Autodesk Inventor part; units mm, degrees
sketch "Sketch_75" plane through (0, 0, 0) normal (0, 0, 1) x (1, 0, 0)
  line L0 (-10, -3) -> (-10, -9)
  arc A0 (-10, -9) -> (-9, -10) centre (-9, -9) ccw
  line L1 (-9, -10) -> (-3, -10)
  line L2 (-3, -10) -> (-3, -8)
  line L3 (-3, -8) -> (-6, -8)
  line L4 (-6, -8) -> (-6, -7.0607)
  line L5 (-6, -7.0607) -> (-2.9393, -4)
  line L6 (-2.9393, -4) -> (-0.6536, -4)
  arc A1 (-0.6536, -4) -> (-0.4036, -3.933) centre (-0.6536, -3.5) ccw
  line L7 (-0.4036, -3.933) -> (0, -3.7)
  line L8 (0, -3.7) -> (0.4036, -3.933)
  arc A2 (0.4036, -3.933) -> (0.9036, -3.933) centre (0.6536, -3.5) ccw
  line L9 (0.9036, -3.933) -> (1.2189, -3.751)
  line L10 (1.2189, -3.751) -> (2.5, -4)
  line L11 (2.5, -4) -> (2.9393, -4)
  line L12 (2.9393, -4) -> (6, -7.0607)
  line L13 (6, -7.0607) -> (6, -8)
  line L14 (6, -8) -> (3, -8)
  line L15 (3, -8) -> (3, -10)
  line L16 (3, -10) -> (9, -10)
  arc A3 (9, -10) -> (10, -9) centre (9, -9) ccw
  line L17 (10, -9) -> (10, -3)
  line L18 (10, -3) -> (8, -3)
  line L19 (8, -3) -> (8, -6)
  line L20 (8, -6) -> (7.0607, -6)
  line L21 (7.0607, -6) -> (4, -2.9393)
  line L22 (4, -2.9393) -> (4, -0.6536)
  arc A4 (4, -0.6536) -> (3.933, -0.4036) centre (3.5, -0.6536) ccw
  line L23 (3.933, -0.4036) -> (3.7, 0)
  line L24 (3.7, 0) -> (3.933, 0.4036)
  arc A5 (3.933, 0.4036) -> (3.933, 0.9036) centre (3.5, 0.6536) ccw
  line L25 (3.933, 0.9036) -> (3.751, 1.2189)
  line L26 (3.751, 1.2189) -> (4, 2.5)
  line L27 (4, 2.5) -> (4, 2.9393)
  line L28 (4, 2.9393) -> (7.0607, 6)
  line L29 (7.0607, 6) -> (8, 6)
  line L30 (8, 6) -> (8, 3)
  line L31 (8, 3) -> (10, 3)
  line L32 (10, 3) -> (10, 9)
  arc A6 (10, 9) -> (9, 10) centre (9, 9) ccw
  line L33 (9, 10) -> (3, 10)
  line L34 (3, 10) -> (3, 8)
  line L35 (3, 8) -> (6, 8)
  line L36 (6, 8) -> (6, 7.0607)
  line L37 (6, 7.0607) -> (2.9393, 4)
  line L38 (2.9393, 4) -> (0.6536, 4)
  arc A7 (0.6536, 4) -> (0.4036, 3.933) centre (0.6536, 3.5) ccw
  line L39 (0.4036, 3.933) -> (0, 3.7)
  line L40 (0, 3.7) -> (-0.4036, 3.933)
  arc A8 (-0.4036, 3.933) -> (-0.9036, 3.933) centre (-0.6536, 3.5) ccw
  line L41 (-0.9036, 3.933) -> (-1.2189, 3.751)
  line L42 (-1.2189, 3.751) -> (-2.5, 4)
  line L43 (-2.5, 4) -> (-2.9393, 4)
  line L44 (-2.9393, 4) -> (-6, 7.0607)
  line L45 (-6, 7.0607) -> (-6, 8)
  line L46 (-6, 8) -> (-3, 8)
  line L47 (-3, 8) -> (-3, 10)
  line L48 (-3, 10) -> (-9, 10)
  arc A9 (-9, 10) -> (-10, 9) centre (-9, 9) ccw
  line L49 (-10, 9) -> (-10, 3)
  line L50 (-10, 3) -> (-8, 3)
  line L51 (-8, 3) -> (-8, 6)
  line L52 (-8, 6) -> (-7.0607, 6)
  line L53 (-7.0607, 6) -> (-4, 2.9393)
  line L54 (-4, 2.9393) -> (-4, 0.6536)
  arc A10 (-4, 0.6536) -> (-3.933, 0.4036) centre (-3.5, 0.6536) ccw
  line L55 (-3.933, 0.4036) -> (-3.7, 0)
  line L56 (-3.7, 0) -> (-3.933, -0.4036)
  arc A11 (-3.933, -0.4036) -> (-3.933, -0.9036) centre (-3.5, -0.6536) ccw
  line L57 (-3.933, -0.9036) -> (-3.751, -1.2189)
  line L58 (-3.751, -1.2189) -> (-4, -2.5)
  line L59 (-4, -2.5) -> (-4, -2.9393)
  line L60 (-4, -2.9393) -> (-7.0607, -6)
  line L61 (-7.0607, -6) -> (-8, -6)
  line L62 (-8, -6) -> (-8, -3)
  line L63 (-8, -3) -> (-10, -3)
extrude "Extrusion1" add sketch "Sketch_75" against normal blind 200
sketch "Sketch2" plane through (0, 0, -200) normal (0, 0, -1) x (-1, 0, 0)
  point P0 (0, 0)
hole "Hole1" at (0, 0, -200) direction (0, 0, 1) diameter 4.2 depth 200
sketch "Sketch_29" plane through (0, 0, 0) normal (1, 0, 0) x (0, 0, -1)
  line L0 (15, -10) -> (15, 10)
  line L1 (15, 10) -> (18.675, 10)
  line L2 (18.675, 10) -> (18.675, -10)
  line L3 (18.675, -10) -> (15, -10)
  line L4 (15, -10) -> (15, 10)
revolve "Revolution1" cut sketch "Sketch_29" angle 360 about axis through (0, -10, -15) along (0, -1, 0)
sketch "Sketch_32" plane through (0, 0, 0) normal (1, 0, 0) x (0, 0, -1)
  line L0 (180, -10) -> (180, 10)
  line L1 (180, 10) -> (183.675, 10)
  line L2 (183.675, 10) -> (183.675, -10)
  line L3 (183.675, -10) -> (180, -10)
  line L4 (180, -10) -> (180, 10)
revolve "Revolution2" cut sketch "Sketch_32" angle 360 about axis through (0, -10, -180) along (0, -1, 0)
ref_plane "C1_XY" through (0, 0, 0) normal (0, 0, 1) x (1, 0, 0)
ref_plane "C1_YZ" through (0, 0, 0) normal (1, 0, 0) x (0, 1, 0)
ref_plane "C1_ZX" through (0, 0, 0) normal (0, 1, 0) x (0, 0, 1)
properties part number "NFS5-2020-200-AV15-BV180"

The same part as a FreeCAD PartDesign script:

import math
import FreeCAD as App
import Part
import Sketcher

V = App.Vector
Q = App.Units.Quantity

doc = App.newDocument("Part")
body = doc.addObject("PartDesign::Body", "Body")

sketch1 = body.newObject("Sketcher::SketchObject", "Sketch")
sketch1.AttachmentSupport = (doc.getObject("XY_Plane"), [""])
sketch1.MapMode = "FlatFace"
sketch1.addGeometry(Part.LineSegment(V(-8, -3, 0), V(-10, -3, 0)), False)
sketch1.addGeometry(Part.LineSegment(V(-10, -3, 0), V(-10, -9, 0)), False)
sketch1.addGeometry(Part.ArcOfCircle(Part.Circle(V(-9, -9, 0), V(0, 0, 1), 1), math.radians(180), math.radians(270)), False)
sketch1.addGeometry(Part.LineSegment(V(-9, -10, 0), V(-3, -10, 0)), False)
sketch1.addGeometry(Part.LineSegment(V(-3, -10, 0), V(-3, -8, 0)), False)
sketch1.addGeometry(Part.LineSegment(V(-3, -8, 0), V(-6, -8, 0)), False)
sketch1.addGeometry(Part.LineSegment(V(-6, -8, 0), V(-6, -7.0607, 0)), False)
sketch1.addGeometry(Part.LineSegment(V(-6, -7.0607, 0), V(-2.9393, -4, 0)), False)
sketch1.addGeometry(Part.LineSegment(V(-2.9393, -4, 0), V(-0.6536, -4, 0)), False)
sketch1.addGeometry(Part.ArcOfCircle(Part.Circle(V(-0.6536, -3.5, 0), V(0, 0, 1), 0.5), math.radians(-90), math.radians(-59.999272)), False)
sketch1.addGeometry(Part.LineSegment(V(-0.4036, -3.933, 0), V(0, -3.7, 0)), False)
sketch1.addGeometry(Part.LineSegment(V(0, -3.7, 0), V(0.4036, -3.933, 0)), False)
sketch1.addGeometry(Part.ArcOfCircle(Part.Circle(V(0.6536, -3.5, 0), V(0, 0, 1), 0.499989), math.radians(-120.000728), math.radians(-59.999272)), False)
sketch1.addGeometry(Part.LineSegment(V(0.9036, -3.933, 0), V(1.2189, -3.751, 0)), False)
sketch1.addGeometry(Part.LineSegment(V(1.2189, -3.751, 0), V(2.5, -4, 0)), False)
sketch1.addGeometry(Part.LineSegment(V(2.5, -4, 0), V(2.9393, -4, 0)), False)
sketch1.addGeometry(Part.LineSegment(V(2.9393, -4, 0), V(6, -7.0607, 0)), False)
sketch1.addGeometry(Part.LineSegment(V(6, -7.0607, 0), V(6, -8, 0)), False)
sketch1.addGeometry(Part.LineSegment(V(6, -8, 0), V(3, -8, 0)), False)
sketch1.addGeometry(Part.LineSegment(V(3, -8, 0), V(3, -10, 0)), False)
sketch1.addGeometry(Part.LineSegment(V(3, -10, 0), V(9, -10, 0)), False)
sketch1.addGeometry(Part.ArcOfCircle(Part.Circle(V(9, -9, 0), V(0, 0, 1), 1), math.radians(-90), math.radians(0)), False)
sketch1.addGeometry(Part.LineSegment(V(10, -9, 0), V(10, -3, 0)), False)
sketch1.addGeometry(Part.LineSegment(V(10, -3, 0), V(8, -3, 0)), False)
sketch1.addGeometry(Part.LineSegment(V(8, -3, 0), V(8, -6, 0)), False)
sketch1.addGeometry(Part.LineSegment(V(8, -6, 0), V(7.0607, -6, 0)), False)
sketch1.addGeometry(Part.LineSegment(V(7.0607, -6, 0), V(4, -2.9393, 0)), False)
sketch1.addGeometry(Part.LineSegment(V(4, -2.9393, 0), V(4, -0.6536, 0)), False)
sketch1.addGeometry(Part.ArcOfCircle(Part.Circle(V(3.5, -0.6536, 0), V(0, 0, 1), 0.5), math.radians(0), math.radians(30.000728)), False)
sketch1.addGeometry(Part.LineSegment(V(3.933, -0.4036, 0), V(3.7, 0, 0)), False)
sketch1.addGeometry(Part.LineSegment(V(3.7, 0, 0), V(3.933, 0.4036, 0)), False)
sketch1.addGeometry(Part.ArcOfCircle(Part.Circle(V(3.5, 0.6536, 0), V(0, 0, 1), 0.499989), math.radians(-30.000728), math.radians(30.000728)), False)
sketch1.addGeometry(Part.LineSegment(V(3.933, 0.9036, 0), V(3.751, 1.2189, 0)), False)
sketch1.addGeometry(Part.LineSegment(V(3.751, 1.2189, 0), V(4, 2.5, 0)), False)
sketch1.addGeometry(Part.LineSegment(V(4, 2.5, 0), V(4, 2.9393, 0)), False)
sketch1.addGeometry(Part.LineSegment(V(4, 2.9393, 0), V(7.0607, 6, 0)), False)
sketch1.addGeometry(Part.LineSegment(V(7.0607, 6, 0), V(8, 6, 0)), False)
sketch1.addGeometry(Part.LineSegment(V(8, 6, 0), V(8, 3, 0)), False)
sketch1.addGeometry(Part.LineSegment(V(8, 3, 0), V(10, 3, 0)), False)
sketch1.addGeometry(Part.LineSegment(V(10, 3, 0), V(10, 9, 0)), False)
sketch1.addGeometry(Part.ArcOfCircle(Part.Circle(V(9, 9, 0), V(0, 0, 1), 1), math.radians(0), math.radians(90)), False)
sketch1.addGeometry(Part.LineSegment(V(9, 10, 0), V(3, 10, 0)), False)
sketch1.addGeometry(Part.LineSegment(V(3, 10, 0), V(3, 8, 0)), False)
sketch1.addGeometry(Part.LineSegment(V(3, 8, 0), V(6, 8, 0)), False)
sketch1.addGeometry(Part.LineSegment(V(6, 8, 0), V(6, 7.0607, 0)), False)
sketch1.addGeometry(Part.LineSegment(V(6, 7.0607, 0), V(2.9393, 4, 0)), False)
sketch1.addGeometry(Part.LineSegment(V(2.9393, 4, 0), V(0.6536, 4, 0)), False)
sketch1.addGeometry(Part.ArcOfCircle(Part.Circle(V(0.6536, 3.5, 0), V(0, 0, 1), 0.5), math.radians(90), math.radians(120.000728)), False)
sketch1.addGeometry(Part.LineSegment(V(0.4036, 3.933, 0), V(0, 3.7, 0)), False)
sketch1.addGeometry(Part.LineSegment(V(0, 3.7, 0), V(-0.4036, 3.933, 0)), False)
sketch1.addGeometry(Part.ArcOfCircle(Part.Circle(V(-0.6536, 3.5, 0), V(0, 0, 1), 0.499989), math.radians(59.999272), math.radians(120.000728)), False)
sketch1.addGeometry(Part.LineSegment(V(-0.9036, 3.933, 0), V(-1.2189, 3.751, 0)), False)
sketch1.addGeometry(Part.LineSegment(V(-1.2189, 3.751, 0), V(-2.5, 4, 0)), False)
sketch1.addGeometry(Part.LineSegment(V(-2.5, 4, 0), V(-2.9393, 4, 0)), False)
sketch1.addGeometry(Part.LineSegment(V(-2.9393, 4, 0), V(-6, 7.0607, 0)), False)
sketch1.addGeometry(Part.LineSegment(V(-6, 7.0607, 0), V(-6, 8, 0)), False)
sketch1.addGeometry(Part.LineSegment(V(-6, 8, 0), V(-3, 8, 0)), False)
sketch1.addGeometry(Part.LineSegment(V(-3, 8, 0), V(-3, 10, 0)), False)
sketch1.addGeometry(Part.LineSegment(V(-3, 10, 0), V(-9, 10, 0)), False)
sketch1.addGeometry(Part.ArcOfCircle(Part.Circle(V(-9, 9, 0), V(0, 0, 1), 1), math.radians(90), math.radians(180)), False)
sketch1.addGeometry(Part.LineSegment(V(-10, 9, 0), V(-10, 3, 0)), False)
sketch1.addGeometry(Part.LineSegment(V(-10, 3, 0), V(-8, 3, 0)), False)
sketch1.addGeometry(Part.LineSegment(V(-8, 3, 0), V(-8, 6, 0)), False)
sketch1.addGeometry(Part.LineSegment(V(-8, 6, 0), V(-7.0607, 6, 0)), False)
sketch1.addGeometry(Part.LineSegment(V(-7.0607, 6, 0), V(-4, 2.9393, 0)), False)
sketch1.addGeometry(Part.LineSegment(V(-4, 2.9393, 0), V(-4, 0.6536, 0)), False)
sketch1.addGeometry(Part.ArcOfCircle(Part.Circle(V(-3.5, 0.6536, 0), V(0, 0, 1), 0.5), math.radians(180), math.radians(210.000728)), False)
sketch1.addGeometry(Part.LineSegment(V(-3.933, 0.4036, 0), V(-3.7, 0, 0)), False)
sketch1.addGeometry(Part.LineSegment(V(-3.7, 0, 0), V(-3.933, -0.4036, 0)), False)
sketch1.addGeometry(Part.ArcOfCircle(Part.Circle(V(-3.5, -0.6536, 0), V(0, 0, 1), 0.499989), math.radians(149.999272), math.radians(210.000728)), False)
sketch1.addGeometry(Part.LineSegment(V(-3.933, -0.9036, 0), V(-3.751, -1.2189, 0)), False)
sketch1.addGeometry(Part.LineSegment(V(-3.751, -1.2189, 0), V(-4, -2.5, 0)), False)
sketch1.addGeometry(Part.LineSegment(V(-4, -2.5, 0), V(-4, -2.9393, 0)), False)
sketch1.addGeometry(Part.LineSegment(V(-4, -2.9393, 0), V(-7.0607, -6, 0)), False)
sketch1.addGeometry(Part.LineSegment(V(-7.0607, -6, 0), V(-8, -6, 0)), False)
sketch1.addGeometry(Part.LineSegment(V(-8, -6, 0), V(-8, -3, 0)), False)
sketch1.addConstraint(Sketcher.Constraint("Coincident", 0, 2, 1, 1))
sketch1.addConstraint(Sketcher.Constraint("Tangent", 1, 2, 2, 1))
sketch1.addConstraint(Sketcher.Constraint("Tangent", 2, 2, 3, 1))
sketch1.addConstraint(Sketcher.Constraint("Coincident", 3, 2, 4, 1))
sketch1.addConstraint(Sketcher.Constraint("Coincident", 4, 2, 5, 1))
sketch1.addConstraint(Sketcher.Constraint("Coincident", 5, 2, 6, 1))
sketch1.addConstraint(Sketcher.Constraint("Coincident", 6, 2, 7, 1))
sketch1.addConstraint(Sketcher.Constraint("Coincident", 7, 2, 8, 1))
sketch1.addConstraint(Sketcher.Constraint("Tangent", 8, 2, 9, 1))
sketch1.addConstraint(Sketcher.Constraint("Tangent", 9, 2, 10, 1))
sketch1.addConstraint(Sketcher.Constraint("Coincident", 10, 2, 11, 1))
sketch1.addConstraint(Sketcher.Constraint("Tangent", 11, 2, 12, 1))
sketch1.addConstraint(Sketcher.Constraint("Tangent", 12, 2, 13, 1))
sketch1.addConstraint(Sketcher.Constraint("Coincident", 13, 2, 14, 1))
sketch1.addConstraint(Sketcher.Constraint("Coincident", 14, 2, 15, 1))
sketch1.addConstraint(Sketcher.Constraint("Coincident", 15, 2, 16, 1))
sketch1.addConstraint(Sketcher.Constraint("Coincident", 16, 2, 17, 1))
sketch1.addConstraint(Sketcher.Constraint("Coincident", 17, 2, 18, 1))
sketch1.addConstraint(Sketcher.Constraint("Coincident", 18, 2, 19, 1))
sketch1.addConstraint(Sketcher.Constraint("Coincident", 19, 2, 20, 1))
sketch1.addConstraint(Sketcher.Constraint("Tangent", 20, 2, 21, 1))
sketch1.addConstraint(Sketcher.Constraint("Tangent", 21, 2, 22, 1))
sketch1.addConstraint(Sketcher.Constraint("Coincident", 22, 2, 23, 1))
sketch1.addConstraint(Sketcher.Constraint("Coincident", 23, 2, 24, 1))
sketch1.addConstraint(Sketcher.Constraint("Coincident", 24, 2, 25, 1))
sketch1.addConstraint(Sketcher.Constraint("Coincident", 25, 2, 26, 1))
sketch1.addConstraint(Sketcher.Constraint("Coincident", 26, 2, 27, 1))
sketch1.addConstraint(Sketcher.Constraint("Tangent", 27, 2, 28, 1))
sketch1.addConstraint(Sketcher.Constraint("Tangent", 28, 2, 29, 1))
sketch1.addConstraint(Sketcher.Constraint("Coincident", 29, 2, 30, 1))
sketch1.addConstraint(Sketcher.Constraint("Tangent", 30, 2, 31, 1))
sketch1.addConstraint(Sketcher.Constraint("Tangent", 31, 2, 32, 1))
sketch1.addConstraint(Sketcher.Constraint("Coincident", 32, 2, 33, 1))
sketch1.addConstraint(Sketcher.Constraint("Coincident", 33, 2, 34, 1))
sketch1.addConstraint(Sketcher.Constraint("Coincident", 34, 2, 35, 1))
sketch1.addConstraint(Sketcher.Constraint("Coincident", 35, 2, 36, 1))
sketch1.addConstraint(Sketcher.Constraint("Coincident", 36, 2, 37, 1))
sketch1.addConstraint(Sketcher.Constraint("Coincident", 37, 2, 38, 1))
sketch1.addConstraint(Sketcher.Constraint("Coincident", 38, 2, 39, 1))
sketch1.addConstraint(Sketcher.Constraint("Tangent", 39, 2, 40, 1))
sketch1.addConstraint(Sketcher.Constraint("Tangent", 40, 2, 41, 1))
sketch1.addConstraint(Sketcher.Constraint("Coincident", 41, 2, 42, 1))
sketch1.addConstraint(Sketcher.Constraint("Coincident", 42, 2, 43, 1))
sketch1.addConstraint(Sketcher.Constraint("Coincident", 43, 2, 44, 1))
sketch1.addConstraint(Sketcher.Constraint("Coincident", 44, 2, 45, 1))
sketch1.addConstraint(Sketcher.Constraint("Coincident", 45, 2, 46, 1))
sketch1.addConstraint(Sketcher.Constraint("Tangent", 46, 2, 47, 1))
sketch1.addConstraint(Sketcher.Constraint("Tangent", 47, 2, 48, 1))
sketch1.addConstraint(Sketcher.Constraint("Coincident", 48, 2, 49, 1))
sketch1.addConstraint(Sketcher.Constraint("Tangent", 49, 2, 50, 1))
sketch1.addConstraint(Sketcher.Constraint("Tangent", 50, 2, 51, 1))
sketch1.addConstraint(Sketcher.Constraint("Coincident", 51, 2, 52, 1))
sketch1.addConstraint(Sketcher.Constraint("Coincident", 52, 2, 53, 1))
sketch1.addConstraint(Sketcher.Constraint("Coincident", 53, 2, 54, 1))
sketch1.addConstraint(Sketcher.Constraint("Coincident", 54, 2, 55, 1))
sketch1.addConstraint(Sketcher.Constraint("Coincident", 55, 2, 56, 1))
sketch1.addConstraint(Sketcher.Constraint("Coincident", 56, 2, 57, 1))
sketch1.addConstraint(Sketcher.Constraint("Coincident", 57, 2, 58, 1))
sketch1.addConstraint(Sketcher.Constraint("Tangent", 58, 2, 59, 1))
sketch1.addConstraint(Sketcher.Constraint("Tangent", 59, 2, 60, 1))
sketch1.addConstraint(Sketcher.Constraint("Coincident", 60, 2, 61, 1))
sketch1.addConstraint(Sketcher.Constraint("Coincident", 61, 2, 62, 1))
sketch1.addConstraint(Sketcher.Constraint("Coincident", 62, 2, 63, 1))
sketch1.addConstraint(Sketcher.Constraint("Coincident", 63, 2, 64, 1))
sketch1.addConstraint(Sketcher.Constraint("Coincident", 64, 2, 65, 1))
sketch1.addConstraint(Sketcher.Constraint("Tangent", 65, 2, 66, 1))
sketch1.addConstraint(Sketcher.Constraint("Tangent", 66, 2, 67, 1))
sketch1.addConstraint(Sketcher.Constraint("Coincident", 67, 2, 68, 1))
sketch1.addConstraint(Sketcher.Constraint("Tangent", 68, 2, 69, 1))
sketch1.addConstraint(Sketcher.Constraint("Tangent", 69, 2, 70, 1))
sketch1.addConstraint(Sketcher.Constraint("Coincident", 70, 2, 71, 1))
sketch1.addConstraint(Sketcher.Constraint("Coincident", 71, 2, 72, 1))
sketch1.addConstraint(Sketcher.Constraint("Coincident", 72, 2, 73, 1))
sketch1.addConstraint(Sketcher.Constraint("Coincident", 73, 2, 74, 1))
sketch1.addConstraint(Sketcher.Constraint("Coincident", 74, 2, 75, 1))
sketch1.addConstraint(Sketcher.Constraint("Coincident", 75, 2, 0, 1))
sketch1.addConstraint(Sketcher.Constraint("Horizontal", 0))
sketch1.addConstraint(Sketcher.Constraint("Vertical", 1))
sketch1.addConstraint(Sketcher.Constraint("Horizontal", 3))
sketch1.addConstraint(Sketcher.Constraint("Vertical", 4))
sketch1.addConstraint(Sketcher.Constraint("Horizontal", 5))
sketch1.addConstraint(Sketcher.Constraint("Vertical", 6))
sketch1.addConstraint(Sketcher.Constraint("Horizontal", 8))
sketch1.addConstraint(Sketcher.Constraint("Horizontal", 15))
sketch1.addConstraint(Sketcher.Constraint("Vertical", 17))
sketch1.addConstraint(Sketcher.Constraint("Horizontal", 18))
sketch1.addConstraint(Sketcher.Constraint("Vertical", 19))
sketch1.addConstraint(Sketcher.Constraint("Horizontal", 20))
sketch1.addConstraint(Sketcher.Constraint("Vertical", 22))
sketch1.addConstraint(Sketcher.Constraint("Horizontal", 23))
sketch1.addConstraint(Sketcher.Constraint("Vertical", 24))
sketch1.addConstraint(Sketcher.Constraint("Horizontal", 25))
sketch1.addConstraint(Sketcher.Constraint("Vertical", 27))
sketch1.addConstraint(Sketcher.Constraint("Vertical", 34))
sketch1.addConstraint(Sketcher.Constraint("Horizontal", 36))
sketch1.addConstraint(Sketcher.Constraint("Vertical", 37))
sketch1.addConstraint(Sketcher.Constraint("Horizontal", 38))
sketch1.addConstraint(Sketcher.Constraint("Vertical", 39))
sketch1.addConstraint(Sketcher.Constraint("Horizontal", 41))
sketch1.addConstraint(Sketcher.Constraint("Vertical", 42))
sketch1.addConstraint(Sketcher.Constraint("Horizontal", 43))
sketch1.addConstraint(Sketcher.Constraint("Vertical", 44))
sketch1.addConstraint(Sketcher.Constraint("Horizontal", 46))
sketch1.addConstraint(Sketcher.Constraint("Horizontal", 53))
sketch1.addConstraint(Sketcher.Constraint("Vertical", 55))
sketch1.addConstraint(Sketcher.Constraint("Horizontal", 56))
sketch1.addConstraint(Sketcher.Constraint("Vertical", 57))
sketch1.addConstraint(Sketcher.Constraint("Horizontal", 58))
sketch1.addConstraint(Sketcher.Constraint("Vertical", 60))
sketch1.addConstraint(Sketcher.Constraint("Horizontal", 61))
sketch1.addConstraint(Sketcher.Constraint("Vertical", 62))
sketch1.addConstraint(Sketcher.Constraint("Horizontal", 63))
sketch1.addConstraint(Sketcher.Constraint("Vertical", 65))
sketch1.addConstraint(Sketcher.Constraint("Vertical", 72))
sketch1.addConstraint(Sketcher.Constraint("Horizontal", 74))
sketch1.addConstraint(Sketcher.Constraint("Vertical", 75))
sketch1.addConstraint(Sketcher.Constraint("Equal", 9, 12))
sketch1.addConstraint(Sketcher.Constraint("Equal", 2, 21))
sketch1.addConstraint(Sketcher.Constraint("Equal", 12, 28))
sketch1.addConstraint(Sketcher.Constraint("Equal", 28, 31))
sketch1.addConstraint(Sketcher.Constraint("Equal", 21, 40))
sketch1.addConstraint(Sketcher.Constraint("Equal", 31, 47))
sketch1.addConstraint(Sketcher.Constraint("Equal", 47, 50))
sketch1.addConstraint(Sketcher.Constraint("Equal", 40, 59))
sketch1.addConstraint(Sketcher.Constraint("Equal", 50, 66))
sketch1.addConstraint(Sketcher.Constraint("Equal", 66, 69))
sketch1.addConstraint(Sketcher.Constraint("Symmetric", 2, 3, 40, 3, -1, 1))
sketch1.addConstraint(Sketcher.Constraint("Symmetric", 9, 3, 47, 3, -1, 1))
sketch1.addConstraint(Sketcher.Constraint("Symmetric", 12, 3, 50, 3, -1, 1))
sketch1.addConstraint(Sketcher.Constraint("Symmetric", 21, 3, 59, 3, -1, 1))
sketch1.addConstraint(Sketcher.Constraint("Symmetric", 28, 3, 66, 3, -1, 1))
sketch1.addConstraint(Sketcher.Constraint("Symmetric", 31, 3, 69, 3, -1, 1))
sketch1.addConstraint(Sketcher.Constraint("Symmetric", 4, 2, 42, 2, -1, 1))
sketch1.addConstraint(Sketcher.Constraint("Symmetric", 6, 2, 44, 2, -1, 1))
sketch1.addConstraint(Sketcher.Constraint("Symmetric", 10, 2, 48, 2, -1, 1))
sketch1.addConstraint(Sketcher.Constraint("Symmetric", 13, 2, 51, 2, -1, 1))
sketch1.addConstraint(Sketcher.Constraint("Symmetric", 14, 2, 52, 2, -1, 1))
sketch1.addConstraint(Sketcher.Constraint("Symmetric", 16, 2, 54, 2, -1, 1))
sketch1.addConstraint(Sketcher.Constraint("Symmetric", 18, 2, 56, 2, -1, 1))
sketch1.addConstraint(Sketcher.Constraint("Symmetric", 23, 2, 61, 2, -1, 1))
sketch1.addConstraint(Sketcher.Constraint("Symmetric", 25, 2, 63, 2, -1, 1))
sketch1.addConstraint(Sketcher.Constraint("Symmetric", 29, 2, 67, 2, -1, 1))
sketch1.addConstraint(Sketcher.Constraint("Symmetric", 32, 2, 70, 2, -1, 1))
sketch1.addConstraint(Sketcher.Constraint("Symmetric", 33, 2, 71, 2, -1, 1))
sketch1.addConstraint(Sketcher.Constraint("Symmetric", 35, 2, 73, 2, -1, 1))
sketch1.addConstraint(Sketcher.Constraint("Symmetric", 37, 2, 75, 2, -1, 1))
sketch1.addConstraint(Sketcher.Constraint("Symmetric", 9, 3, 12, 3, -2))
sketch1.addConstraint(Sketcher.Constraint("Symmetric", 2, 3, 21, 3, -2))
sketch1.addConstraint(Sketcher.Constraint("Symmetric", 31, 3, 66, 3, -2))
sketch1.addConstraint(Sketcher.Constraint("Symmetric", 7, 2, 15, 2, -2))
sketch1.addConstraint(Sketcher.Constraint("Symmetric", 6, 2, 16, 2, -2))
sketch1.addConstraint(Sketcher.Constraint("Symmetric", 4, 2, 18, 2, -2))
sketch1.addConstraint(Sketcher.Constraint("Symmetric", 37, 2, 61, 2, -2))
sketch1.addConstraint(Sketcher.Constraint("Symmetric", 35, 2, 63, 2, -2))
sketch1.addConstraint(Sketcher.Constraint("Symmetric", 34, 2, 64, 2, -2))
sketch1.addConstraint(Sketcher.Constraint("PointOnObject", 10, 2, -2))
sketch1.addConstraint(Sketcher.Constraint("PointOnObject", 29, 2, -1))
sketch1.addConstraint(Sketcher.Constraint("Parallel", 10, 13))
sketch1.addConstraint(Sketcher.Constraint("Perpendicular", 7, 16))
sketch1.addConstraint(Sketcher.Constraint("Parallel", 16, 26))
sketch1.addConstraint(Sketcher.Constraint("Perpendicular", 13, 29))
sketch1.addConstraint(Sketcher.Constraint("Parallel", 29, 32))
sketch1.addConstraint(Sketcher.Constraint("Perpendicular", 14, 33))
sketch1.addConstraint(Sketcher.Constraint("Perpendicular", 26, 35))
sketch1.addConstraint(Sketcher.Constraint("Parallel", 35, 45))
sketch1.addConstraint(Sketcher.Constraint("Perpendicular", 45, 54))
sketch1.addConstraint(Sketcher.Constraint("Perpendicular", 64, 73))
sketch1.addConstraint(Sketcher.Constraint("Equal", 58, 1))
sketch1.addConstraint(Sketcher.Constraint("Equal", 61, 4))
sketch1.addConstraint(Sketcher.Constraint("Equal", 74, 6))
sketch1.addConstraint(Sketcher.Constraint("Equal", 56, 24))
sketch1.addConstraint(Sketcher.Constraint("Equal", 46, 27))
sketch1.addConstraint(Sketcher.Constraint("Equal", 53, 34))
sketch1.addConstraint(Sketcher.Constraint("Equal", 16, 26))
sketch1.addConstraint(Sketcher.Constraint("Equal", 11, 29))
sketch1.addConstraint(Sketcher.Constraint("Radius", 2, 1.0))
sketch1.addConstraint(Sketcher.Constraint("Radius", 9, 0.5))
sketch1.addConstraint(Sketcher.Constraint("DistanceX", 0, 2, 0, 1, 2.0))
sketch1.addConstraint(Sketcher.Constraint("DistanceX", 3, 1, 3, 2, 6.0))
sketch1.addConstraint(Sketcher.Constraint("DistanceX", 5, 2, 5, 1, 3.0))
sketch1.addConstraint(Sketcher.Constraint("Angle", 14, Q("-10.999 deg")))
sketch1.addConstraint(Sketcher.Constraint("DistanceX", 2, 3, -1, 1, 9.0))
sketch1.addConstraint(Sketcher.Constraint("DistanceY", 7, 2, -1, 1, 4.0))
sketch1.addConstraint(Sketcher.Constraint("DistanceY", 10, 2, -1, 1, 3.7))
sketch1.addConstraint(Sketcher.Constraint("DistanceX", -1, 1, 14, 2, 2.5))
sketch1.addConstraint(Sketcher.Constraint("Distance", 10, 0.466))
sketch1.addConstraint(Sketcher.Constraint("DistanceX", 8, 1, 8, 2, 2.2857))
pad1 = body.newObject("PartDesign::Pad", "Pad")
pad1.Profile = sketch1
pad1.Length = 200
pad1.Reversed = True

sketch2 = body.newObject("Sketcher::SketchObject", "Sketch001")
sketch2.AttachmentSupport = (doc.getObject("XY_Plane"), [""])
sketch2.MapMode = "FlatFace"
sketch2.AttachmentOffset = App.Placement(V(0, 0, -200), App.Rotation())
sketch2.addGeometry(Part.Circle(V(0, 0, 0), V(0, 0, 1), 2.1), False)
sketch2.addConstraint(Sketcher.Constraint("Coincident", 0, 3, -1, 1))
sketch2.addConstraint(Sketcher.Constraint("Diameter", 0, 4.2))
doc.recompute()
hole = body.newObject("PartDesign::Hole", "Hole")
hole.Profile = sketch2
hole.ThreadType = "None"
hole.Diameter = 4.2
hole.DepthType = "Dimension"
hole.Depth = 200
hole.DrillPoint = "Flat"
hole.Reversed = True

sketch3 = body.newObject("Sketcher::SketchObject", "Sketch002")
sketch3.AttachmentSupport = (doc.getObject("YZ_Plane"), [""])
sketch3.MapMode = "FlatFace"
sketch3.addGeometry(Part.LineSegment(V(10, -15, 0), V(-10, -15, 0)), False)
sketch3.addGeometry(Part.LineSegment(V(-10, -15, 0), V(-10, -18.675, 0)), False)
sketch3.addGeometry(Part.LineSegment(V(-10, -18.675, 0), V(10, -18.675, 0)), False)
sketch3.addGeometry(Part.LineSegment(V(10, -18.675, 0), V(10, -15, 0)), False)
sketch3.addGeometry(Part.LineSegment(V(10, -15, 0), V(-10, -15, 0)), True)
sketch3.addConstraint(Sketcher.Constraint("Coincident", 0, 2, 1, 1))
sketch3.addConstraint(Sketcher.Constraint("Coincident", 1, 2, 2, 1))
sketch3.addConstraint(Sketcher.Constraint("Coincident", 2, 2, 3, 1))
sketch3.addConstraint(Sketcher.Constraint("Coincident", 3, 2, 0, 1))
sketch3.addConstraint(Sketcher.Constraint("Horizontal", 0))
sketch3.addConstraint(Sketcher.Constraint("Vertical", 1))
sketch3.addConstraint(Sketcher.Constraint("Horizontal", 2))
sketch3.addConstraint(Sketcher.Constraint("Vertical", 3))
sketch3.addConstraint(Sketcher.Constraint("Horizontal", 4))
sketch3.addConstraint(Sketcher.Constraint("Coincident", 4, 1, 3, 2))
sketch3.addConstraint(Sketcher.Constraint("Vertical", 1, 2, 4, 2))
sketch3.addConstraint(Sketcher.Constraint("DistanceX", 0, 2, 0, 1, 20.0))
sketch3.addConstraint(Sketcher.Constraint("DistanceX", 0, 2, -1, 1, 10.0))
sketch3.addConstraint(Sketcher.Constraint("DistanceY", 0, 2, -1, 1, 15.0))
sketch3.addConstraint(Sketcher.Constraint("DistanceY", 1, 2, 1, 1, 3.675))
groove = body.newObject("PartDesign::Groove", "Groove")
groove.Profile = sketch3
groove.ReferenceAxis = (sketch3, ["Axis0"])
groove.Angle = 360

sketch4 = body.newObject("Sketcher::SketchObject", "Sketch003")
sketch4.AttachmentSupport = (doc.getObject("YZ_Plane"), [""])
sketch4.MapMode = "FlatFace"
sketch4.addGeometry(Part.LineSegment(V(10, -180, 0), V(-10, -180, 0)), False)
sketch4.addGeometry(Part.LineSegment(V(-10, -180, 0), V(-10, -183.675, 0)), False)
sketch4.addGeometry(Part.LineSegment(V(-10, -183.675, 0), V(10, -183.675, 0)), False)
sketch4.addGeometry(Part.LineSegment(V(10, -183.675, 0), V(10, -180, 0)), False)
sketch4.addGeometry(Part.LineSegment(V(10, -180, 0), V(-10, -180, 0)), True)
sketch4.addConstraint(Sketcher.Constraint("Coincident", 0, 2, 1, 1))
sketch4.addConstraint(Sketcher.Constraint("Coincident", 1, 2, 2, 1))
sketch4.addConstraint(Sketcher.Constraint("Coincident", 2, 2, 3, 1))
sketch4.addConstraint(Sketcher.Constraint("Coincident", 3, 2, 0, 1))
sketch4.addConstraint(Sketcher.Constraint("Horizontal", 0))
sketch4.addConstraint(Sketcher.Constraint("Vertical", 1))
sketch4.addConstraint(Sketcher.Constraint("Horizontal", 2))
sketch4.addConstraint(Sketcher.Constraint("Vertical", 3))
sketch4.addConstraint(Sketcher.Constraint("Horizontal", 4))
sketch4.addConstraint(Sketcher.Constraint("Coincident", 4, 1, 3, 2))
sketch4.addConstraint(Sketcher.Constraint("Vertical", 1, 2, 4, 2))
sketch4.addConstraint(Sketcher.Constraint("DistanceX", 0, 2, 0, 1, 20.0))
sketch4.addConstraint(Sketcher.Constraint("DistanceX", 0, 2, -1, 1, 10.0))
sketch4.addConstraint(Sketcher.Constraint("DistanceY", 0, 2, -1, 1, 180.0))
sketch4.addConstraint(Sketcher.Constraint("DistanceY", 1, 2, 1, 1, 3.675))
groove2 = body.newObject("PartDesign::Groove", "Groove001")
groove2.Profile = sketch4
groove2.ReferenceAxis = (sketch4, ["Axis0"])
groove2.Angle = 360

doc.recompute()
